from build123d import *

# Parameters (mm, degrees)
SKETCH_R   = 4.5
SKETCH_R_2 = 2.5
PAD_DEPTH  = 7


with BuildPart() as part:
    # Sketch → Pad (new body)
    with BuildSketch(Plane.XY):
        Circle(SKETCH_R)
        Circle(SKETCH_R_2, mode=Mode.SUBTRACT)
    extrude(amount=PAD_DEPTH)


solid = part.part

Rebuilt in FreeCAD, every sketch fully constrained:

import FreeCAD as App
import Part
import Sketcher
Q = App.Units.Quantity

doc = App.newDocument("Part")
body = doc.addObject("PartDesign::Body", "Body")

sketch1 = body.newObject("Sketcher::SketchObject", "Sketch")
sketch1.AttachmentSupport = (doc.getObject("XY_Plane"), [""])
sketch1.MapMode = "FlatFace"
sketch1.addGeometry(Part.Circle(App.Vector(0, 0, 0), App.Vector(0, 0, 1), 4.5), False)
sketch1.addGeometry(Part.Circle(App.Vector(0, 0, 0), App.Vector(0, 0, 1), 2.5), False)
sketch1.addConstraint(Sketcher.Constraint("Coincident", 0, 3, -1, 1))
sketch1.addConstraint(Sketcher.Constraint("Coincident", 1, 3, -1, 1))
sketch1.addConstraint(Sketcher.Constraint("Diameter", 0, Q("9 mm")))
sketch1.addConstraint(Sketcher.Constraint("Diameter", 1, Q("5 mm")))
pad1 = body.newObject("PartDesign::Pad", "Pad")
pad1.Profile = sketch1
pad1.Length = 7

doc.recompute()
